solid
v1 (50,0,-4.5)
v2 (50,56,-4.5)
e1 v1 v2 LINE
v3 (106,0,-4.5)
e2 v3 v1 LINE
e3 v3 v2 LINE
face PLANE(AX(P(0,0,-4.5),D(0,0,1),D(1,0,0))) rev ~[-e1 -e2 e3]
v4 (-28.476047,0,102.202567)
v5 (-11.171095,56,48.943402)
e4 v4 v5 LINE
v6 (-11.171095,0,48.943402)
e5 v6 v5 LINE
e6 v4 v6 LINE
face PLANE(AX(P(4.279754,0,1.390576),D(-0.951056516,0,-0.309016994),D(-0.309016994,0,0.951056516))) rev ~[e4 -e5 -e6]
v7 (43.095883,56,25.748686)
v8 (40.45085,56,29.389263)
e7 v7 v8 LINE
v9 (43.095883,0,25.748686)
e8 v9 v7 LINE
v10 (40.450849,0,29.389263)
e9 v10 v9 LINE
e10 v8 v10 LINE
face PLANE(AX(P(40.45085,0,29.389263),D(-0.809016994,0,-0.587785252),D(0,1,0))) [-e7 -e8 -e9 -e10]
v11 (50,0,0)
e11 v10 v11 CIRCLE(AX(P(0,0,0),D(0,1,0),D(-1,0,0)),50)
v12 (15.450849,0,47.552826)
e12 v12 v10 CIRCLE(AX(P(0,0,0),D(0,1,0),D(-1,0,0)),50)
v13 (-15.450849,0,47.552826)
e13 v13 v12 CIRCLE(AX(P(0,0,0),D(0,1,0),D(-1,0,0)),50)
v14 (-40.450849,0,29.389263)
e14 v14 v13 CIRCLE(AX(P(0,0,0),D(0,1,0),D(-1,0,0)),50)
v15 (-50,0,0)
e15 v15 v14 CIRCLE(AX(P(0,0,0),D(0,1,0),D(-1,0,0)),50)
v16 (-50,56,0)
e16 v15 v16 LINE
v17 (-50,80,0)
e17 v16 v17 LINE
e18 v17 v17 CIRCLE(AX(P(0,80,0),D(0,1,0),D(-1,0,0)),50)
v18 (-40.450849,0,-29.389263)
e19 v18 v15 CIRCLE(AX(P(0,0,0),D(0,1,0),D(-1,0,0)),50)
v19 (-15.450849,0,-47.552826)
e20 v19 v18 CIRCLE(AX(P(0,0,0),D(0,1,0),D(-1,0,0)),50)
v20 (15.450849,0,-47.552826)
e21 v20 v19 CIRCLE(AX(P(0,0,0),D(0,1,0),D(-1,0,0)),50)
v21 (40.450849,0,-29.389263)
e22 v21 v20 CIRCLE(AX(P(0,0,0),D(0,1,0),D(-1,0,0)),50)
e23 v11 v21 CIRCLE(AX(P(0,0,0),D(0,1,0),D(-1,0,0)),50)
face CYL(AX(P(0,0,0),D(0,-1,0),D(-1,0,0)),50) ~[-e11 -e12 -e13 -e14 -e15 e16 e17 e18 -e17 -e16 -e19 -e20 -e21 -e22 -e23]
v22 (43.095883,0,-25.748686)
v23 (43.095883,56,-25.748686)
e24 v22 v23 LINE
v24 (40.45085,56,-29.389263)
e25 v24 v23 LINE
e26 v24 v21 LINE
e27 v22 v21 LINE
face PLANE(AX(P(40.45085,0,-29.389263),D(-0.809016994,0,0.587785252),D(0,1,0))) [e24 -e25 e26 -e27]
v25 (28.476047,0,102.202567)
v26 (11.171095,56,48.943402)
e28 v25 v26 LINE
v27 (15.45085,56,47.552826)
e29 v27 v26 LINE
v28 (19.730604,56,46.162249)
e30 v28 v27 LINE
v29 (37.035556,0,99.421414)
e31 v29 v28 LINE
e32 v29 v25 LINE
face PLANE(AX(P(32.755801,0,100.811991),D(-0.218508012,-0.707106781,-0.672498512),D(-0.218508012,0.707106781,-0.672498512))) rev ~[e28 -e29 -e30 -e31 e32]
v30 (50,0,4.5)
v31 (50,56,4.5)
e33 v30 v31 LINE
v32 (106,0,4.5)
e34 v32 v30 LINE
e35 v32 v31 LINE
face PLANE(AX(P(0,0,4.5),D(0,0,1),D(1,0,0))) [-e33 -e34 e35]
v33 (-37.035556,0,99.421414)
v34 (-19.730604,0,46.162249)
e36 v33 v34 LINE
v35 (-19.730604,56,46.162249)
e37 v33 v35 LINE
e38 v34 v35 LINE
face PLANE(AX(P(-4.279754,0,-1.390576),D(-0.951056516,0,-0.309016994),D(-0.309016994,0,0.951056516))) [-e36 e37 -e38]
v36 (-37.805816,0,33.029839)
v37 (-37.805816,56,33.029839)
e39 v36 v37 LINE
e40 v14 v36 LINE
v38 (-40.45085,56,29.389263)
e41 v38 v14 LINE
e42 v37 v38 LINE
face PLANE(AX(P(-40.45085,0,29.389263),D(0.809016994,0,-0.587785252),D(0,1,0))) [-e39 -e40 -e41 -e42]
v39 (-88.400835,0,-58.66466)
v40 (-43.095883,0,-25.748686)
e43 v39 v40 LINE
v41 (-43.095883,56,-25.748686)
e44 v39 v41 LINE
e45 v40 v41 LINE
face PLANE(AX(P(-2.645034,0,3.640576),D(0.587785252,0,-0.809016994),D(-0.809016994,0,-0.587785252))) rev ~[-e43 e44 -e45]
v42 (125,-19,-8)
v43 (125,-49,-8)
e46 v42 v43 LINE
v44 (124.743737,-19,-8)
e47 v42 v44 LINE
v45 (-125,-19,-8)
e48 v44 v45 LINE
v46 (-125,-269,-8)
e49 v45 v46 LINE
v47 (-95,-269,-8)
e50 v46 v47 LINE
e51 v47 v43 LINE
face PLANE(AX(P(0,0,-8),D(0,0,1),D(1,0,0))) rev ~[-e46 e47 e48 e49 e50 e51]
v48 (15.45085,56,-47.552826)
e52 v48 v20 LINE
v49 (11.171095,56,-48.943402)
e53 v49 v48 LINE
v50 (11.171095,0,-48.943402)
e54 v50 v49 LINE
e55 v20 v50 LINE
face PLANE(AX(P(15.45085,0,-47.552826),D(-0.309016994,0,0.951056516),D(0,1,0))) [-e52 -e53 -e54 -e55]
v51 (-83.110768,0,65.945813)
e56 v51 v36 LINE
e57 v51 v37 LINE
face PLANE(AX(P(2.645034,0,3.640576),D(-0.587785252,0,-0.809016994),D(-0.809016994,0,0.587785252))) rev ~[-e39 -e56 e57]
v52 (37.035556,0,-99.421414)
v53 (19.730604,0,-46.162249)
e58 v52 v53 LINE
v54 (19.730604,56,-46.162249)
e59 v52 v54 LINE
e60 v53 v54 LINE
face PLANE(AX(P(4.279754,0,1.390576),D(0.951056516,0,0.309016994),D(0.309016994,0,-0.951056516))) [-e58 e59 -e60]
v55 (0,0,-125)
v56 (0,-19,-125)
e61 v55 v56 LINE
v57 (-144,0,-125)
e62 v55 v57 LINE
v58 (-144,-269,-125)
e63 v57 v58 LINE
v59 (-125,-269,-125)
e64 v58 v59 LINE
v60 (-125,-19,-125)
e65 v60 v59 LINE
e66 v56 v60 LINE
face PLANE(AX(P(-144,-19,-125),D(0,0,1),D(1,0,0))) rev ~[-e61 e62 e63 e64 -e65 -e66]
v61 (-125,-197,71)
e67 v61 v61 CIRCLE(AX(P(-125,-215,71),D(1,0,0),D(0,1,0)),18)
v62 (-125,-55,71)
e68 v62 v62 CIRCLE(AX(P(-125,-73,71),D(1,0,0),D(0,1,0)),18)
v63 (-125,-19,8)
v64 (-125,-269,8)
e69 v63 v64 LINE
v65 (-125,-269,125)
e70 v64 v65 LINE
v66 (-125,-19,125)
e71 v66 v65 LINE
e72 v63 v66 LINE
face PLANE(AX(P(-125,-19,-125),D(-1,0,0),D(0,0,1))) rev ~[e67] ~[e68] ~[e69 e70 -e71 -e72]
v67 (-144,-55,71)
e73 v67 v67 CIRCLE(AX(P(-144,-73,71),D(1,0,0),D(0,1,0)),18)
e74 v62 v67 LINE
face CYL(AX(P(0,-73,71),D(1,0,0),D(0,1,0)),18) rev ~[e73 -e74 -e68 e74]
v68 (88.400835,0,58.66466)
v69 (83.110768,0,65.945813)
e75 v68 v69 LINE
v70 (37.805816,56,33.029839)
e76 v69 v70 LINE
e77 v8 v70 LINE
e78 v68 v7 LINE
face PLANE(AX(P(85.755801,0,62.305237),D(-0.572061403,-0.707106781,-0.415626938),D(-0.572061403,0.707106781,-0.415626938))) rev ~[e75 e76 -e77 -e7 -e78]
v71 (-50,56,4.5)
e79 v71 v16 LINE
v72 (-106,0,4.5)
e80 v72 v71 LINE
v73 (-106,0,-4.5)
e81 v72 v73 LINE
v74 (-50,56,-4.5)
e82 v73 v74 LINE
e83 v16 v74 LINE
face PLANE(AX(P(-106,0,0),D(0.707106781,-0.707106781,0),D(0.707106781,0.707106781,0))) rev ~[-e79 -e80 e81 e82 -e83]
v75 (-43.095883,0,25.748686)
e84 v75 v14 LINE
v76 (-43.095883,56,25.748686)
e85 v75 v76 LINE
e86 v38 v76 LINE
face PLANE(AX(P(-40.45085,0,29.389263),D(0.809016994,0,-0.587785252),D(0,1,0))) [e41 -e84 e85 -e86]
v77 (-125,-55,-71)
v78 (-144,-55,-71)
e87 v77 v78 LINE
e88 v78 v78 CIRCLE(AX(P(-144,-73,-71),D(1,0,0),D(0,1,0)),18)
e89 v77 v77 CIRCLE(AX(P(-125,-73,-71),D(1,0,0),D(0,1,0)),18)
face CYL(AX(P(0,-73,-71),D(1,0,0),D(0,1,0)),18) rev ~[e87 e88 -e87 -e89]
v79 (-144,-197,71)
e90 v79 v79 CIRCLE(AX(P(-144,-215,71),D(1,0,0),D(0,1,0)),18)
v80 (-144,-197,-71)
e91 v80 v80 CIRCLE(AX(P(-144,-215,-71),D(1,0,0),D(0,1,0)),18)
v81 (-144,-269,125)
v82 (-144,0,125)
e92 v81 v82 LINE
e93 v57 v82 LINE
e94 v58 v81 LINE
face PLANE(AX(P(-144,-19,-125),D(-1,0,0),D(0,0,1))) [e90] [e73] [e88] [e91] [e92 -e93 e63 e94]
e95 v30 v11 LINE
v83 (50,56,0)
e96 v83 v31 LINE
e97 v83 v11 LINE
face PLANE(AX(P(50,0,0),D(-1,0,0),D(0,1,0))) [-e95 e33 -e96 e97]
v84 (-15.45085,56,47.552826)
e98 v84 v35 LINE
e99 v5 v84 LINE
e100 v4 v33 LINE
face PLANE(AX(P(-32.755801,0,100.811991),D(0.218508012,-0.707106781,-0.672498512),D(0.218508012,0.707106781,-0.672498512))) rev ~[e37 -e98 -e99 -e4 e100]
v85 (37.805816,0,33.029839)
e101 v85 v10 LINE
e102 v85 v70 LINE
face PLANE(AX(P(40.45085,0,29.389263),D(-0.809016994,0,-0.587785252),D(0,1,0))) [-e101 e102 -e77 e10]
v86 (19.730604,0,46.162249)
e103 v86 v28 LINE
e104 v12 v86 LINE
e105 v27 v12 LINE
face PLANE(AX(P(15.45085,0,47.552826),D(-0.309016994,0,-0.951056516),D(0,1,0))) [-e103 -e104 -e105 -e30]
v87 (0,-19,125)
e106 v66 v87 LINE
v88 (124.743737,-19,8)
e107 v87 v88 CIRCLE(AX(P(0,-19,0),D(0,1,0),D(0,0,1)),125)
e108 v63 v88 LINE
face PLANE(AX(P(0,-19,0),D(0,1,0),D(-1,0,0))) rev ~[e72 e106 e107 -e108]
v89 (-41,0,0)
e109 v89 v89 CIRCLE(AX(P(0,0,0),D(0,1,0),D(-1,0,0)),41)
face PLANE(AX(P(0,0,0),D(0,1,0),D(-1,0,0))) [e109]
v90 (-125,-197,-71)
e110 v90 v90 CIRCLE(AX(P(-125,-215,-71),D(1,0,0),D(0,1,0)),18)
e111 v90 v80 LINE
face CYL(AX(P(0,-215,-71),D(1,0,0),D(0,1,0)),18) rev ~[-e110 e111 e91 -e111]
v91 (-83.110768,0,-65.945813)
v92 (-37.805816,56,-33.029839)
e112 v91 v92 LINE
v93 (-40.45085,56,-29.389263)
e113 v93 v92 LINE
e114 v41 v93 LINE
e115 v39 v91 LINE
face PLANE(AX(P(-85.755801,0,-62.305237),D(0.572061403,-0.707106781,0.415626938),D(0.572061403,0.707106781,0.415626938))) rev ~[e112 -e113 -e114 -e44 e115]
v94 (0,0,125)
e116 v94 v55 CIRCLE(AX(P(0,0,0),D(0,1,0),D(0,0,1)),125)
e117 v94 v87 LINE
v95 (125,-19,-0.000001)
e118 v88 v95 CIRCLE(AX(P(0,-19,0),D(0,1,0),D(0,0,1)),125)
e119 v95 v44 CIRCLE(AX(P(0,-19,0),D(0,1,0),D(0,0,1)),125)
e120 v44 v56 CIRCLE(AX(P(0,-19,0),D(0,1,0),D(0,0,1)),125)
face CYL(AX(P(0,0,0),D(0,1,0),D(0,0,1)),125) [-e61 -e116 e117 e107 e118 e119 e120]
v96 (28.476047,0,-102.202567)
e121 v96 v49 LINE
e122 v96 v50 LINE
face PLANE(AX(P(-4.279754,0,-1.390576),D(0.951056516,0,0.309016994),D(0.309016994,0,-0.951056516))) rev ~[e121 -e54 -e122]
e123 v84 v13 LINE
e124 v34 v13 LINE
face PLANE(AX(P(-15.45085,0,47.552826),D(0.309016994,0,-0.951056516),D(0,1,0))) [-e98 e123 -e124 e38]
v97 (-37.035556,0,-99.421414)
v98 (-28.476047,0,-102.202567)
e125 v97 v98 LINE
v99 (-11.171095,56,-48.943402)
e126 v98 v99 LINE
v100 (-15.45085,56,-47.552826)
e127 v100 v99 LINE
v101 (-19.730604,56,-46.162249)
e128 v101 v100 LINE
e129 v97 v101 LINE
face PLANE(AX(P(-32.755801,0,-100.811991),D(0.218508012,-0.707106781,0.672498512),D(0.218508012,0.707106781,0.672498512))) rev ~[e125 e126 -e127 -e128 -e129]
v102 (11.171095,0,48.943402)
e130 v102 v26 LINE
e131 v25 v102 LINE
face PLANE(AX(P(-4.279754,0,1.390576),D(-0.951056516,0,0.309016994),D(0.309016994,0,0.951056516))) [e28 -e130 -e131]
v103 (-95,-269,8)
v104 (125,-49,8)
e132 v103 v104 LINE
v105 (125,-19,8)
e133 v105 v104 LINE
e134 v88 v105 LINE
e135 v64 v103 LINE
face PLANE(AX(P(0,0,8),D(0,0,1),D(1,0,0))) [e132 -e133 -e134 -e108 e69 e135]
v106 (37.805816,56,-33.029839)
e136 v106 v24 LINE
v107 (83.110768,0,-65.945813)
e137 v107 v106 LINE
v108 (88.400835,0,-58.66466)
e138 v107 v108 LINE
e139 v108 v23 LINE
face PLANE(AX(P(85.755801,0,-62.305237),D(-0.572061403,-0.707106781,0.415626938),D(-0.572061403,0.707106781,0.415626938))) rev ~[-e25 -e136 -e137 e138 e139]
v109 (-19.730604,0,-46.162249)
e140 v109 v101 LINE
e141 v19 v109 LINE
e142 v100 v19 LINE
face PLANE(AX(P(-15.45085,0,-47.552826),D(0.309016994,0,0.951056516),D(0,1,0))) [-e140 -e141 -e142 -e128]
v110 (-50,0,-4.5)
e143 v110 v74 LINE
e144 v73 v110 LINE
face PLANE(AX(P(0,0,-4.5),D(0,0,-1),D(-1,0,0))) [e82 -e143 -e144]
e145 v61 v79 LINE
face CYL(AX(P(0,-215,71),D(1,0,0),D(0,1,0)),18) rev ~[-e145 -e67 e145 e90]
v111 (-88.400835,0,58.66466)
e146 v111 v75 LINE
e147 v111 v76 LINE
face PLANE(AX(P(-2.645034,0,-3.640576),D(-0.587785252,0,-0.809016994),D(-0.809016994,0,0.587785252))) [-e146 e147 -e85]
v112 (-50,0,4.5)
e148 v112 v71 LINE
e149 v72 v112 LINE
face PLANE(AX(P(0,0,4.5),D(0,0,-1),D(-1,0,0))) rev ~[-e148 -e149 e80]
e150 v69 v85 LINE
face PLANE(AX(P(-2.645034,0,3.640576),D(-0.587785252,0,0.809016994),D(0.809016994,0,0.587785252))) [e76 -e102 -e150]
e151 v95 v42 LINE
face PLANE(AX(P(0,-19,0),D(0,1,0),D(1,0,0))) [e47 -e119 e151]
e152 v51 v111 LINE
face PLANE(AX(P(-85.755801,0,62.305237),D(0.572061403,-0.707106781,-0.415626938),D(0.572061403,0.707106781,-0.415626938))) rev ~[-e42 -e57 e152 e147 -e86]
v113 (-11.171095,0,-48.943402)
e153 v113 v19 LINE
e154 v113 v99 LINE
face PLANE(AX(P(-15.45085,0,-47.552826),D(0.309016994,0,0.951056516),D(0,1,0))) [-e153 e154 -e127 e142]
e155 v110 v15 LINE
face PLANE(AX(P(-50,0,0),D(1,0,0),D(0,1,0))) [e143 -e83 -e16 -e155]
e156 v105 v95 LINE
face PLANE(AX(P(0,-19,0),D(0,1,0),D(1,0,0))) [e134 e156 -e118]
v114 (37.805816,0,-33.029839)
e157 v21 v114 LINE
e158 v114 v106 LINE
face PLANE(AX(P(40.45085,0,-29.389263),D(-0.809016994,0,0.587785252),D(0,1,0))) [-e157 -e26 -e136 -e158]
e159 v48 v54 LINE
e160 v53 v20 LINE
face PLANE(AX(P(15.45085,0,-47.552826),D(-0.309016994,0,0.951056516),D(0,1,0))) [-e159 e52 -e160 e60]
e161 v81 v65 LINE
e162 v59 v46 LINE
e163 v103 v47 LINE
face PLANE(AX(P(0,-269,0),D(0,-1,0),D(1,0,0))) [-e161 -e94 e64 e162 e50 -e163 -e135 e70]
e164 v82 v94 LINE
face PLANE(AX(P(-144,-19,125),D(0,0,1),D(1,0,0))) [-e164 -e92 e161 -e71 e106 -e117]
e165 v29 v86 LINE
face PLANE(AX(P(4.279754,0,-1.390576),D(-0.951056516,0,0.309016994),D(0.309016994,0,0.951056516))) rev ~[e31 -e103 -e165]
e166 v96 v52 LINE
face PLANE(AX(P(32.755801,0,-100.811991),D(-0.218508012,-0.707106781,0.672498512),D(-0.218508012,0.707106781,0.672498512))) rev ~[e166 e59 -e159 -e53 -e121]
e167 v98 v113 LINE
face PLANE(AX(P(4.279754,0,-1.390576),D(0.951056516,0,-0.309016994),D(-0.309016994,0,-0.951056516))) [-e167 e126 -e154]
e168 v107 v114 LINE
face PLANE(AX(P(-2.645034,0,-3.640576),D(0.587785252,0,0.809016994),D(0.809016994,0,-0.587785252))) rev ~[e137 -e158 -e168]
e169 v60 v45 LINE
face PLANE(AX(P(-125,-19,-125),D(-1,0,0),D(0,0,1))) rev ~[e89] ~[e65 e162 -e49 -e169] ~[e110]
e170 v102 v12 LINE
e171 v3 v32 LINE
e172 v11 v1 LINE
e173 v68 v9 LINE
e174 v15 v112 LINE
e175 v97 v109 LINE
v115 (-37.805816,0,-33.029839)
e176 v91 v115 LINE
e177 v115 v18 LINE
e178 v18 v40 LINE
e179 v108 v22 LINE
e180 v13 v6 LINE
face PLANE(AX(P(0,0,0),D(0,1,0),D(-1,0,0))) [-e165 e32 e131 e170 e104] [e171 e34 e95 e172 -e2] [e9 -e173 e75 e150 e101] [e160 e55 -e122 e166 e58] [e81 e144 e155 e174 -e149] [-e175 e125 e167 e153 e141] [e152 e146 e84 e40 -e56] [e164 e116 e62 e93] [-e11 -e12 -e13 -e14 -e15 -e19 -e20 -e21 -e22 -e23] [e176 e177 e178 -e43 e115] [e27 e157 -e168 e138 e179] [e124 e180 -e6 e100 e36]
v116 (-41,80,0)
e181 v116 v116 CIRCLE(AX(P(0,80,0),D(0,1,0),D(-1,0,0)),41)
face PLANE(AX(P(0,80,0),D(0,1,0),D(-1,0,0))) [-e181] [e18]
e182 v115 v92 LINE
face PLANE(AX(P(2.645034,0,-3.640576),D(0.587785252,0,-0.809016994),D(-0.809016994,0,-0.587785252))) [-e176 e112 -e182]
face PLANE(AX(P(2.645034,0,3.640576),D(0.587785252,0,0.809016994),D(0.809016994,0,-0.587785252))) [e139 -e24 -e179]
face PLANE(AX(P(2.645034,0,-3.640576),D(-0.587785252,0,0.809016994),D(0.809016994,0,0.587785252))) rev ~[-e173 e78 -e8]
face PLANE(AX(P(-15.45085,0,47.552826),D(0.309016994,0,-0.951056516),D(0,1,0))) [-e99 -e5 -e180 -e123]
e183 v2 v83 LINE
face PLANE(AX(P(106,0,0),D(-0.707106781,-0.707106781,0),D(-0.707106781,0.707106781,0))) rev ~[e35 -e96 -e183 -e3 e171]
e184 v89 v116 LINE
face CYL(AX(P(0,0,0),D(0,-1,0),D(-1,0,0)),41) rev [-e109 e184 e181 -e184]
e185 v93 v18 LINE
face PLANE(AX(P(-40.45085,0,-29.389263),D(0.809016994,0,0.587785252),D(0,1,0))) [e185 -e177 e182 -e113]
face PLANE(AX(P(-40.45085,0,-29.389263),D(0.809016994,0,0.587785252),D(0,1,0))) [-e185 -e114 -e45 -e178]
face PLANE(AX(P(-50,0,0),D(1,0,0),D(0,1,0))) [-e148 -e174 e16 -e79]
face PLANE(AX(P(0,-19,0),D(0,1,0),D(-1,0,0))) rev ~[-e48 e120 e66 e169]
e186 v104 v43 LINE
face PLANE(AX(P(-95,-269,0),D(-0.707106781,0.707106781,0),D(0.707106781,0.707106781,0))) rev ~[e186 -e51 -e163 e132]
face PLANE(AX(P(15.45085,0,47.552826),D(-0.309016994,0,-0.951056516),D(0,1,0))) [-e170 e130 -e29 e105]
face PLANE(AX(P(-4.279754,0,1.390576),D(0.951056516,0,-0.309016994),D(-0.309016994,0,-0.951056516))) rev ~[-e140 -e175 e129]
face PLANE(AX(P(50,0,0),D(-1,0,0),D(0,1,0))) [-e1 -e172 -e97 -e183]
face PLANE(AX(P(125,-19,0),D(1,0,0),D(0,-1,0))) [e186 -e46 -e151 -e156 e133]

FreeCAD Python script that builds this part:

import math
import FreeCAD as App
import Part
import Sketcher
from FreeCAD import Vector


def add_polygon(sketch, points):
    """Adds a closed chain of lines whose ends are joined by coincident constraints."""
    first, n = sketch.GeometryCount, len(points)
    for a, b in zip(points, points[1:] + points[:1]):
        sketch.addGeometry(Part.LineSegment(App.Vector(*a, 0), App.Vector(*b, 0)), False)
    for i in range(n):
        sketch.addConstraint(Sketcher.Constraint("Coincident", first + i, 2, first + (i + 1) % n, 1))

doc = App.newDocument("Part")
body = doc.addObject("PartDesign::Body", "Body")

# Sketch on XZ plane
sketch1 = body.newObject("Sketcher::SketchObject", "Sketch")
sketch1.AttachmentSupport = (doc.getObject("XZ_Plane"), [""])
sketch1.MapMode = "FlatFace"
sketch1.addGeometry([
    Part.LineSegment(Vector(-144, 125, 0), Vector(0, 125, 0)),
    Part.ArcOfCircle(Part.Circle(Vector(0, 0, 0), Vector(0, 0, 1), 125), math.radians(-90), math.radians(90)),
    Part.LineSegment(Vector(0, -125, 0), Vector(-144, -125, 0)),
    Part.LineSegment(Vector(-144, -125, 0), Vector(-144, 125, 0)),
], False)
sketch1.addConstraint([
    Sketcher.Constraint("Tangent", 0, 2, 1, 2),
    Sketcher.Constraint("Tangent", 1, 1, 2, 1),
    Sketcher.Constraint("Coincident", 2, 2, 3, 1),
    Sketcher.Constraint("Coincident", 3, 2, 0, 1),
    Sketcher.Constraint("Horizontal", 0),
    Sketcher.Constraint("Horizontal", 2),
    Sketcher.Constraint("Vertical", 3),
    Sketcher.Constraint("Coincident", 1, 3, -1, 1),
    Sketcher.Constraint("Radius", 1, 125.0),
    Sketcher.Constraint("DistanceX", 0, 1, 0, 2, 144.0),
])
pad1 = body.newObject("PartDesign::Pad", "Pad")
pad1.Profile = sketch1
pad1.Length = 19

# Sketch on XZ plane
sketch2 = body.newObject("Sketcher::SketchObject", "Sketch001")
sketch2.AttachmentSupport = (doc.getObject("XZ_Plane"), [""])
sketch2.MapMode = "FlatFace"
sketch2.addGeometry([
    Part.Circle(Vector(0, 0, 0), Vector(0, 0, 1), 50),
    Part.Circle(Vector(0, 0, 0), Vector(0, 0, 1), 41),
], False)
sketch2.addConstraint([
    Sketcher.Constraint("Coincident", 0, 3, -1, 1),
    Sketcher.Constraint("Coincident", 1, 3, -1, 1),
    Sketcher.Constraint("Diameter", 0, 100.0),
    Sketcher.Constraint("Diameter", 1, 82.0),
])
pad2 = body.newObject("PartDesign::Pad", "Pad001")
pad2.Profile = sketch2
pad2.Length = 80
pad2.Reversed = True

# Sketch on XY plane
sketch3 = body.newObject("Sketcher::SketchObject", "Sketch002")
sketch3.AttachmentSupport = (doc.getObject("XY_Plane"), [""])
sketch3.MapMode = "FlatFace"
add_polygon(sketch3, [(50, 0), (106, 0), (50, 56)])  # lines 0-2
sketch3.addConstraint([
    Sketcher.Constraint("Horizontal", 0),
    Sketcher.Constraint("Vertical", 2),
    Sketcher.Constraint("PointOnObject", 0, 2, -1),
    Sketcher.Constraint("Equal", 0, 2),
    Sketcher.Constraint("DistanceX", 0, 1, 0, 2, 56.0),
    Sketcher.Constraint("DistanceX", -1, 1, 0, 2, 106.0),
])
pad3 = body.newObject("PartDesign::Pad", "Pad002")
pad3.Profile = sketch3
pad3.Length = 9
pad3.Midplane = True
doc.recompute()

polarpattern = body.newObject("PartDesign::PolarPattern", "PolarPattern")
polarpattern.Originals = [pad3]
polarpattern.Axis = (doc.getObject("Y_Axis"), [""])
polarpattern.Angle = 360
polarpattern.Occurrences = 10
body.Tip = polarpattern

# Sketch on XZ plane
sketch4 = body.newObject("Sketcher::SketchObject", "Sketch003")
sketch4.AttachmentSupport = (doc.getObject("XZ_Plane"), [""])
sketch4.MapMode = "FlatFace"
sketch4.AttachmentOffset = App.Placement(Vector(0, 0, 19), App.Rotation())
add_polygon(sketch4, [(-144, 125), (-144, -125), (-125, -125), (-125, 125)])  # lines 0-3
sketch4.addConstraint([
    Sketcher.Constraint("Vertical", 0),
    Sketcher.Constraint("Horizontal", 1),
    Sketcher.Constraint("Vertical", 2),
    Sketcher.Constraint("Horizontal", 3),
    Sketcher.Constraint("DistanceX", 1, 1, 1, 2, 19.0),
    Sketcher.Constraint("DistanceY", 0, 2, 0, 1, 250.0),
    Sketcher.Constraint("DistanceX", 0, 2, -1, 1, 144.0),
    Sketcher.Constraint("DistanceY", 0, 2, -1, 1, 125.0),
])
pad4 = body.newObject("PartDesign::Pad", "Pad003")
pad4.Profile = sketch4
pad4.Length = 250

# Sketch on XY plane
sketch5 = body.newObject("Sketcher::SketchObject", "Sketch004")
sketch5.AttachmentSupport = (doc.getObject("XY_Plane"), [""])
sketch5.MapMode = "FlatFace"
add_polygon(sketch5, [(125, -19), (-125, -19), (-125, -269), (-95, -269), (125, -49)])  # lines 0-4
sketch5.addConstraint([
    Sketcher.Constraint("Horizontal", 0),
    Sketcher.Constraint("Vertical", 1),
    Sketcher.Constraint("Horizontal", 2),
    Sketcher.Constraint("Vertical", 4),
    Sketcher.Constraint("Equal", 0, 1),
    Sketcher.Constraint("Equal", 2, 4),
    Sketcher.Constraint("DistanceX", 2, 1, 2, 2, 30.0),
    Sketcher.Constraint("DistanceX", 0, 2, 0, 1, 250.0),
    Sketcher.Constraint("DistanceX", 0, 2, -1, 1, 125.0),
    Sketcher.Constraint("DistanceY", 0, 2, -1, 1, 19.0),
])
pad5 = body.newObject("PartDesign::Pad", "Pad004")
pad5.Profile = sketch5
pad5.Length = 16
pad5.Midplane = True

# Sketch on YZ plane
sketch6 = body.newObject("Sketcher::SketchObject", "Sketch005")
sketch6.AttachmentSupport = (doc.getObject("YZ_Plane"), [""])
sketch6.MapMode = "FlatFace"
sketch6.addGeometry([
    Part.Circle(Vector(-73, 71, 0), Vector(0, 0, 1), 18),
    Part.Circle(Vector(-215, 71, 0), Vector(0, 0, 1), 18),
    Part.Circle(Vector(-73, -71, 0), Vector(0, 0, 1), 18),
    Part.Circle(Vector(-215, -71, 0), Vector(0, 0, 1), 18),
], False)
sketch6.addConstraint([
    Sketcher.Constraint("Equal", 0, 1),
    Sketcher.Constraint("Equal", 1, 2),
    Sketcher.Constraint("Equal", 2, 3),
    Sketcher.Constraint("Symmetric", 0, 3, 2, 3, -1),
    Sketcher.Constraint("Symmetric", 1, 3, 3, 3, -1),
    Sketcher.Constraint("Horizontal", 0, 3, 1, 3),
    Sketcher.Constraint("Diameter", 0, 36.0),
    Sketcher.Constraint("DistanceX", 1, 3, 0, 3, 142.0),
    Sketcher.Constraint("DistanceY", 2, 3, 0, 3, 142.0),
    Sketcher.Constraint("DistanceX", 0, 3, -1, 1, 73.0),
])
pocket1 = body.newObject("PartDesign::Pocket", "Pocket")
pocket1.Profile = sketch6
pocket1.Length = 200

doc.recompute()
